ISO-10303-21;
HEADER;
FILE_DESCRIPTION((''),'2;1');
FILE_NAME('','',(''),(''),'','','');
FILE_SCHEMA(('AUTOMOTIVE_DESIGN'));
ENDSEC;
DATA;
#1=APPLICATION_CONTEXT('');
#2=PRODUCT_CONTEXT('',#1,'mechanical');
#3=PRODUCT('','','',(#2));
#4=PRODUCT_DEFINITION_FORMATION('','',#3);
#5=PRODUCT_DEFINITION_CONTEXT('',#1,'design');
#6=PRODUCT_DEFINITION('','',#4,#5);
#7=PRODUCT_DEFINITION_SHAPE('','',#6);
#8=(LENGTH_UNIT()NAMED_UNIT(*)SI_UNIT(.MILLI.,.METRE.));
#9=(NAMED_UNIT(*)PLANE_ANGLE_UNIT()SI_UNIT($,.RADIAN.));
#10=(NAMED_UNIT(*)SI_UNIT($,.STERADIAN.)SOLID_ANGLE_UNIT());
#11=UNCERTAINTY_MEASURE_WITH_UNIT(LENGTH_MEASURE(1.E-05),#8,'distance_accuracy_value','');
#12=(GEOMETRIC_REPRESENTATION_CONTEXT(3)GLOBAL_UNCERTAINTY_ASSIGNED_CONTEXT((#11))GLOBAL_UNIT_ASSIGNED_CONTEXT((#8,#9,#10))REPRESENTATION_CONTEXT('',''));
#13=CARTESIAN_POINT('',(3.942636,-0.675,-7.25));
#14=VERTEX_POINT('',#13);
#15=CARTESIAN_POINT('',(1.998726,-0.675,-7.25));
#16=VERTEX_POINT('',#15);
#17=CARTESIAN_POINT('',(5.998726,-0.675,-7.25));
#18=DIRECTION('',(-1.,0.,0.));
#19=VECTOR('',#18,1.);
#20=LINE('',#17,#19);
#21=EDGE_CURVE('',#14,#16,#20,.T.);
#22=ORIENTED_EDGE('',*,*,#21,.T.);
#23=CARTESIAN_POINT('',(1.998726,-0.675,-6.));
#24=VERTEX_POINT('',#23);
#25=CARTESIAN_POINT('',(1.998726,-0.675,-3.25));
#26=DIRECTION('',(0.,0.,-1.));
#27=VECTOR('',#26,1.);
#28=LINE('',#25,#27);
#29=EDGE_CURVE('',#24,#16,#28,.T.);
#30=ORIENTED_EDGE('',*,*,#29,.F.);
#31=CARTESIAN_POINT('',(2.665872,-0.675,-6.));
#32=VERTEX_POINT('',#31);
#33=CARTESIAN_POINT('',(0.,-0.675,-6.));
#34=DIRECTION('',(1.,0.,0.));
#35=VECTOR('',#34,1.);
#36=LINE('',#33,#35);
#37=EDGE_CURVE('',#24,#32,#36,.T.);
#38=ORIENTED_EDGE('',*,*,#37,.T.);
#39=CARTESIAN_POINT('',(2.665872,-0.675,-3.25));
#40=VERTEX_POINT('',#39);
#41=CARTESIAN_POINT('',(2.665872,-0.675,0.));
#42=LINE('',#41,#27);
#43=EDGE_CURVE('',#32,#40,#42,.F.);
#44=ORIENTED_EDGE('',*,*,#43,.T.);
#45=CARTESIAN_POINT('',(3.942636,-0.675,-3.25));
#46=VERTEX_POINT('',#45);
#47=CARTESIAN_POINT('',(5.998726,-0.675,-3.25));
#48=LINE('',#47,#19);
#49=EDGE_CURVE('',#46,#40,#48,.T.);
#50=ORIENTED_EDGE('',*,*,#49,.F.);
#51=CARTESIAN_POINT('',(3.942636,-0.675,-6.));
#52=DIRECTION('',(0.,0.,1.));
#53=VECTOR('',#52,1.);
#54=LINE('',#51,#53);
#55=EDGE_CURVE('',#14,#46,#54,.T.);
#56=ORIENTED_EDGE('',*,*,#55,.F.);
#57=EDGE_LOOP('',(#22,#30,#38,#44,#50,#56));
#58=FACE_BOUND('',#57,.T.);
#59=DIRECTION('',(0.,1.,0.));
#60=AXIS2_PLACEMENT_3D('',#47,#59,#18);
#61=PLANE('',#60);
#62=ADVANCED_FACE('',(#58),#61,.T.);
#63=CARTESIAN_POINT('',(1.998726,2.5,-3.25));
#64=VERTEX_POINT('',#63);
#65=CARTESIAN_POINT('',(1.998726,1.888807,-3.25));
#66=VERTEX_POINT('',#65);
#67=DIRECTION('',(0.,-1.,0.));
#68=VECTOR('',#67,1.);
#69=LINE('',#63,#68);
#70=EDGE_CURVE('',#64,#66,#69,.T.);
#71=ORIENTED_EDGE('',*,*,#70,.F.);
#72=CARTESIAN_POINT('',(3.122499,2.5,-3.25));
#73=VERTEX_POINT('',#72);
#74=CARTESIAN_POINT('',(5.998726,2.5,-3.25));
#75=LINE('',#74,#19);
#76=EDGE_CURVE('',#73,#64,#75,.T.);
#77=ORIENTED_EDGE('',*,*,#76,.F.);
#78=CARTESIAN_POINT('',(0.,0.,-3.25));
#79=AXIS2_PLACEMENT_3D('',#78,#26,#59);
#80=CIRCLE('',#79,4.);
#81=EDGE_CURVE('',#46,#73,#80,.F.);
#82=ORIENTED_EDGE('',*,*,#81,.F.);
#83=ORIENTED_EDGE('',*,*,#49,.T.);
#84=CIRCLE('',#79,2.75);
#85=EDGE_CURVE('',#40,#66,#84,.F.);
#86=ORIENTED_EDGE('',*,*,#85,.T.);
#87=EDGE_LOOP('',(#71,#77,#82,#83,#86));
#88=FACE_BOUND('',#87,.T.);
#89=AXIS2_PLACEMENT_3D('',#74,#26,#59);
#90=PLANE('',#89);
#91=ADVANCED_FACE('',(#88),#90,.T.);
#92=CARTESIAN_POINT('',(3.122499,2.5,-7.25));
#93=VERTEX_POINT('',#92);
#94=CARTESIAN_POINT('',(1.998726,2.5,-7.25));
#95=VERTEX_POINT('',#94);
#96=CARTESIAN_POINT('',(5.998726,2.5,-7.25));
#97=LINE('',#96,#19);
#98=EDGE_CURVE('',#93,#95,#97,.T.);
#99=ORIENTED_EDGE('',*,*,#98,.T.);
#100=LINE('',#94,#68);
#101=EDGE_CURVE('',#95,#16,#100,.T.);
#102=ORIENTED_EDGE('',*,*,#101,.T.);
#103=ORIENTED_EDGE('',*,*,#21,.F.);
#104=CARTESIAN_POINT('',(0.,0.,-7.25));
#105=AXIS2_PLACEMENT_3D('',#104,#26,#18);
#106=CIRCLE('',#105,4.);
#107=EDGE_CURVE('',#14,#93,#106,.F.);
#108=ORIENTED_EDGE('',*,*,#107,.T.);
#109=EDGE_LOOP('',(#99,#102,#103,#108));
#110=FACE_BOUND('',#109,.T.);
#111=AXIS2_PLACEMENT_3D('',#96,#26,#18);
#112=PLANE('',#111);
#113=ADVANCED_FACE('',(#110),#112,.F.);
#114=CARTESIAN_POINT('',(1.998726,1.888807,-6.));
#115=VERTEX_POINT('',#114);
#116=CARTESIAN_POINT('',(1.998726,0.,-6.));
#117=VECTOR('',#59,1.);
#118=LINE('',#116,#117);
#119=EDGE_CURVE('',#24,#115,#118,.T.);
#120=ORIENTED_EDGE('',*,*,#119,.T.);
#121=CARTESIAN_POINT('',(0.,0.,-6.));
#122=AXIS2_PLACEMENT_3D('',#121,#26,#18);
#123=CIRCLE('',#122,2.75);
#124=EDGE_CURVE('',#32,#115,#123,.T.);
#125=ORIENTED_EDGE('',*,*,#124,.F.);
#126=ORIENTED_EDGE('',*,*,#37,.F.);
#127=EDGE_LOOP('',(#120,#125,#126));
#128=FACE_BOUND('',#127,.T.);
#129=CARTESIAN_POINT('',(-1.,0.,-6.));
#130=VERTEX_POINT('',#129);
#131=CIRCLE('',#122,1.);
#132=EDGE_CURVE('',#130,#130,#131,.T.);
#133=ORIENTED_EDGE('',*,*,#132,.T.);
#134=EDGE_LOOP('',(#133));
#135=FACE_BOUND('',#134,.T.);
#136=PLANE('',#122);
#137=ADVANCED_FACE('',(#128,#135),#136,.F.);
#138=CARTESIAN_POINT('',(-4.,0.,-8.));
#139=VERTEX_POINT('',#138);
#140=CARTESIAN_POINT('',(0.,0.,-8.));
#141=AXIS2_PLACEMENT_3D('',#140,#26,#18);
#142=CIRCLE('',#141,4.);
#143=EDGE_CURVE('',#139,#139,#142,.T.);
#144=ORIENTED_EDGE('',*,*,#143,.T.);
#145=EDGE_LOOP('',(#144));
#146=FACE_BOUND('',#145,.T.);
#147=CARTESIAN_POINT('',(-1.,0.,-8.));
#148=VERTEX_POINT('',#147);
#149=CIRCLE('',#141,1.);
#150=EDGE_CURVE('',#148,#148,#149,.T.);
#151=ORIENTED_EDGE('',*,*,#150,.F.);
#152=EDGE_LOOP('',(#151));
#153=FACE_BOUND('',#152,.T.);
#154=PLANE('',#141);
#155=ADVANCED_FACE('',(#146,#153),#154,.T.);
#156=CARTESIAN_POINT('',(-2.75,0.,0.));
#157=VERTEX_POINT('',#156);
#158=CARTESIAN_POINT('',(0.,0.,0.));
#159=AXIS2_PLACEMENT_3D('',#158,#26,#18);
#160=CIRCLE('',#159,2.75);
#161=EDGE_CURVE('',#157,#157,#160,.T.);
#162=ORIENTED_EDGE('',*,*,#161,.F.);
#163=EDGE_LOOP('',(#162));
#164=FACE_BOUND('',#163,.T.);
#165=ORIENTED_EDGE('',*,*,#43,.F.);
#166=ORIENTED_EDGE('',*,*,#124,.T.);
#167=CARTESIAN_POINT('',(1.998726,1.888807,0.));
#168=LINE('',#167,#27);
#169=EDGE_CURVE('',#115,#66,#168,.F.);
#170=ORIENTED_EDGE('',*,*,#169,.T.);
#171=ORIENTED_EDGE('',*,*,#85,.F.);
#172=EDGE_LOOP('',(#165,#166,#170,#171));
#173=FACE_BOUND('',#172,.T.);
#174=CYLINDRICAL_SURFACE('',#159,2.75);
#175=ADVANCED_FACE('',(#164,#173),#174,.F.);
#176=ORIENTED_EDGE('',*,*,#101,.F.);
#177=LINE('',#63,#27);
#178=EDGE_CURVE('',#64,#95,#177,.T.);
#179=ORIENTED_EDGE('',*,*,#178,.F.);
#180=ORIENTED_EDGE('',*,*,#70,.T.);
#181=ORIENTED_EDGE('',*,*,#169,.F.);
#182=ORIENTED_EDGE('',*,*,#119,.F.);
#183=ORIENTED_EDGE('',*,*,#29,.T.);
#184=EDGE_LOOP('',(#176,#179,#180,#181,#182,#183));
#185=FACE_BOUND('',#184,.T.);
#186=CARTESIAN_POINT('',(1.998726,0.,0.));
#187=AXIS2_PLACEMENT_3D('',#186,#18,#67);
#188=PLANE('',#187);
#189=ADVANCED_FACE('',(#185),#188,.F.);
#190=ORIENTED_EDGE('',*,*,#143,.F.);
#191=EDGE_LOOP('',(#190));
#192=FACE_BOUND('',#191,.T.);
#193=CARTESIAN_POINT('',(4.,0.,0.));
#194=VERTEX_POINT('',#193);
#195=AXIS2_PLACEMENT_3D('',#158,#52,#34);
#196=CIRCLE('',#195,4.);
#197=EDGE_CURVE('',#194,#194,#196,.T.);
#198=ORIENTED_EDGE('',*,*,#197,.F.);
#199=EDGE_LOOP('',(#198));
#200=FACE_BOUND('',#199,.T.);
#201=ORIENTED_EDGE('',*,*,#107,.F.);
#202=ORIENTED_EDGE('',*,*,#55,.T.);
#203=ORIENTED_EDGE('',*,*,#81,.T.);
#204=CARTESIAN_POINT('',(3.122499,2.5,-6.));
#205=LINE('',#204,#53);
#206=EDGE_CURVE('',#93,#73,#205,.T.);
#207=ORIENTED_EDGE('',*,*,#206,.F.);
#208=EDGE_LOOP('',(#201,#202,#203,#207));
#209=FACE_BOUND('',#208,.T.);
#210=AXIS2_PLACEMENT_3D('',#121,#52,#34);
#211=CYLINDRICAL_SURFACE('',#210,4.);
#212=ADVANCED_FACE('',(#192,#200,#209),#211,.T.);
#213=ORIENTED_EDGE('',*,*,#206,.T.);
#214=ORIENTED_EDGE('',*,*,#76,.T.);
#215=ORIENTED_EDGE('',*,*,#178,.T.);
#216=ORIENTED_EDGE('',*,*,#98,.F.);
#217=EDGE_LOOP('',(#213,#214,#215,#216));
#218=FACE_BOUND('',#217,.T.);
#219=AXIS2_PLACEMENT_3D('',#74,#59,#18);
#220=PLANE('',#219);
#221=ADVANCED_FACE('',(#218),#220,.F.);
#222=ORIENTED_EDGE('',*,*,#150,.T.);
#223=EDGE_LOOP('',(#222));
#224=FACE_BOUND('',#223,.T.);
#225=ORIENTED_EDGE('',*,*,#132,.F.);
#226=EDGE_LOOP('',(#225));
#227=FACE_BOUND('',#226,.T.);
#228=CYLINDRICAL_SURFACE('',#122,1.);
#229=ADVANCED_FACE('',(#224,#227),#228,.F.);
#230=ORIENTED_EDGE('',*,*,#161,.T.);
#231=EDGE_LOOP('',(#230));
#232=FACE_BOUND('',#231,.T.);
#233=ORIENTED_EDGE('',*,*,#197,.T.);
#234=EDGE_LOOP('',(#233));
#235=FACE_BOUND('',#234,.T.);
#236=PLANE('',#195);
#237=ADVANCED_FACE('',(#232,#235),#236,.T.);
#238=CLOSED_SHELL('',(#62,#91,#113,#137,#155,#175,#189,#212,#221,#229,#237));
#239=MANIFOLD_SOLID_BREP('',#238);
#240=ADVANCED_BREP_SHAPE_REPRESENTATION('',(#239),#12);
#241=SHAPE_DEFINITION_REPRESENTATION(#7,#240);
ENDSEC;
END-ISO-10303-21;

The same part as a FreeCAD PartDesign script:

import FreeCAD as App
import Part
import Sketcher
from FreeCAD import Vector

doc = App.newDocument("Part")
params = doc.addObject("Spreadsheet::Sheet", "Params")
for row, (alias, value) in enumerate([
    ("sketch1_diameter", "8 mm"),
    ("pad1_length", "6 mm"),
    ("sketch2_diameter", "5.5 mm"),
    ("pocket1_length", "6 mm"),
    ("sketch3_diameter", "8 mm"),
    ("pad2_length", "2 mm"),
    ("sketch4_diameter", "2 mm"),
    ("pocket2_length", "2 mm"),
    ("sketch5_height", "4 mm"),
    ("pocket3_length", "2 mm"),
    ("pocket3_length2", "2 mm"),
], start=1):
    params.set(f"A{row}", alias)
    params.set(f"B{row}", "=" + value)
    params.setAlias(f"B{row}", alias)

body = doc.addObject("PartDesign::Body", "Body")

# Sketch on XY plane
sketch1 = body.newObject("Sketcher::SketchObject", "Sketch")
sketch1.AttachmentSupport = (doc.getObject("XY_Plane"), [""])
sketch1.MapMode = "FlatFace"
sketch1.addGeometry(Part.Circle(Vector(0, 0, 0), Vector(0, 0, 1), 4), False)
sketch1.addConstraint([
    Sketcher.Constraint("Coincident", 0, 3, -1, 1),
    Sketcher.Constraint("Diameter", 0, 8.0),
])
sketch1.setExpression("Constraints[1]", "Params.sketch1_diameter")
pad1 = body.newObject("PartDesign::Pad", "Pad")
pad1.Profile = sketch1
pad1.setExpression("Length", "Params.pad1_length")
pad1.Reversed = True

# Sketch on XY plane
sketch2 = body.newObject("Sketcher::SketchObject", "Sketch001")
sketch2.AttachmentSupport = (doc.getObject("XY_Plane"), [""])
sketch2.MapMode = "FlatFace"
sketch2.AttachmentOffset = App.Placement(Vector(0, 0, -6), App.Rotation())
sketch2.addGeometry(Part.Circle(Vector(0, 0, 0), Vector(0, 0, 1), 2.75), False)
sketch2.addConstraint([
    Sketcher.Constraint("Coincident", 0, 3, -1, 1),
    Sketcher.Constraint("Diameter", 0, 5.5),
])
sketch2.setExpression("Constraints[1]", "Params.sketch2_diameter")
pocket1 = body.newObject("PartDesign::Pocket", "Pocket")
pocket1.Profile = sketch2
pocket1.setExpression("Length", "Params.pocket1_length")
pocket1.Reversed = True

# Sketch on XY plane
sketch3 = body.newObject("Sketcher::SketchObject", "Sketch002")
sketch3.AttachmentSupport = (doc.getObject("XY_Plane"), [""])
sketch3.MapMode = "FlatFace"
sketch3.AttachmentOffset = App.Placement(Vector(0, 0, -6), App.Rotation())
sketch3.addGeometry(Part.Circle(Vector(0, 0, 0), Vector(0, 0, 1), 4), False)
sketch3.addConstraint([
    Sketcher.Constraint("Coincident", 0, 3, -1, 1),
    Sketcher.Constraint("Diameter", 0, 8.0),
])
sketch3.setExpression("Constraints[1]", "Params.sketch3_diameter")
pad2 = body.newObject("PartDesign::Pad", "Pad001")
pad2.Profile = sketch3
pad2.setExpression("Length", "Params.pad2_length")
pad2.Reversed = True

# Sketch on XY plane
sketch4 = body.newObject("Sketcher::SketchObject", "Sketch003")
sketch4.AttachmentSupport = (doc.getObject("XY_Plane"), [""])
sketch4.MapMode = "FlatFace"
sketch4.AttachmentOffset = App.Placement(Vector(0, 0, -8), App.Rotation())
sketch4.addGeometry(Part.Circle(Vector(0, 0, 0), Vector(0, 0, 1), 1), False)
sketch4.addConstraint([
    Sketcher.Constraint("Coincident", 0, 3, -1, 1),
    Sketcher.Constraint("Diameter", 0, 2.0),
])
sketch4.setExpression("Constraints[1]", "Params.sketch4_diameter")
pocket2 = body.newObject("PartDesign::Pocket", "Pocket001")
pocket2.Profile = sketch4
pocket2.setExpression("Length", "Params.pocket2_length")
pocket2.Reversed = True

# Sketch on YZ plane
sketch5 = body.newObject("Sketcher::SketchObject", "Sketch004")
sketch5.AttachmentSupport = (doc.getObject("YZ_Plane"), [""])
sketch5.MapMode = "FlatFace"
sketch5.AttachmentOffset = App.Placement(Vector(0, 0, 3.998726), App.Rotation())
sketch5.addGeometry([
    Part.LineSegment(Vector(2.5, -3.25, 0), Vector(-0.675, -3.25, 0)),
    Part.LineSegment(Vector(-0.675, -3.25, 0), Vector(-0.675, -7.25, 0)),
    Part.LineSegment(Vector(-0.675, -7.25, 0), Vector(2.5, -7.25, 0)),
    Part.LineSegment(Vector(2.5, -7.25, 0), Vector(2.5, -3.25, 0)),
], False)
sketch5.addConstraint([
    Sketcher.Constraint("Coincident", 0, 2, 1, 1),
    Sketcher.Constraint("Coincident", 1, 2, 2, 1),
    Sketcher.Constraint("Coincident", 2, 2, 3, 1),
    Sketcher.Constraint("Coincident", 3, 2, 0, 1),
    Sketcher.Constraint("Horizontal", 0),
    Sketcher.Constraint("Vertical", 1),
    Sketcher.Constraint("Horizontal", 2),
    Sketcher.Constraint("Vertical", 3),
    Sketcher.Constraint("DistanceY", 1, 2, 1, 1, 4.0),
    Sketcher.Constraint("DistanceX", -1, 1, 2, 2, 2.5),
    Sketcher.Constraint("DistanceX", 0, 2, 0, 1, 3.175),
    Sketcher.Constraint("DistanceY", 0, 2, -1, 1, 3.25),
])
sketch5.setExpression("Constraints[8]", "Params.sketch5_height")
pocket3 = body.newObject("PartDesign::Pocket", "Pocket002")
pocket3.Profile = sketch5
pocket3.Type = "TwoLengths"
pocket3.setExpression("Length", "Params.pocket3_length")
pocket3.setExpression("Length2", "Params.pocket3_length2")
pocket3.Reversed = True

doc.recompute()
